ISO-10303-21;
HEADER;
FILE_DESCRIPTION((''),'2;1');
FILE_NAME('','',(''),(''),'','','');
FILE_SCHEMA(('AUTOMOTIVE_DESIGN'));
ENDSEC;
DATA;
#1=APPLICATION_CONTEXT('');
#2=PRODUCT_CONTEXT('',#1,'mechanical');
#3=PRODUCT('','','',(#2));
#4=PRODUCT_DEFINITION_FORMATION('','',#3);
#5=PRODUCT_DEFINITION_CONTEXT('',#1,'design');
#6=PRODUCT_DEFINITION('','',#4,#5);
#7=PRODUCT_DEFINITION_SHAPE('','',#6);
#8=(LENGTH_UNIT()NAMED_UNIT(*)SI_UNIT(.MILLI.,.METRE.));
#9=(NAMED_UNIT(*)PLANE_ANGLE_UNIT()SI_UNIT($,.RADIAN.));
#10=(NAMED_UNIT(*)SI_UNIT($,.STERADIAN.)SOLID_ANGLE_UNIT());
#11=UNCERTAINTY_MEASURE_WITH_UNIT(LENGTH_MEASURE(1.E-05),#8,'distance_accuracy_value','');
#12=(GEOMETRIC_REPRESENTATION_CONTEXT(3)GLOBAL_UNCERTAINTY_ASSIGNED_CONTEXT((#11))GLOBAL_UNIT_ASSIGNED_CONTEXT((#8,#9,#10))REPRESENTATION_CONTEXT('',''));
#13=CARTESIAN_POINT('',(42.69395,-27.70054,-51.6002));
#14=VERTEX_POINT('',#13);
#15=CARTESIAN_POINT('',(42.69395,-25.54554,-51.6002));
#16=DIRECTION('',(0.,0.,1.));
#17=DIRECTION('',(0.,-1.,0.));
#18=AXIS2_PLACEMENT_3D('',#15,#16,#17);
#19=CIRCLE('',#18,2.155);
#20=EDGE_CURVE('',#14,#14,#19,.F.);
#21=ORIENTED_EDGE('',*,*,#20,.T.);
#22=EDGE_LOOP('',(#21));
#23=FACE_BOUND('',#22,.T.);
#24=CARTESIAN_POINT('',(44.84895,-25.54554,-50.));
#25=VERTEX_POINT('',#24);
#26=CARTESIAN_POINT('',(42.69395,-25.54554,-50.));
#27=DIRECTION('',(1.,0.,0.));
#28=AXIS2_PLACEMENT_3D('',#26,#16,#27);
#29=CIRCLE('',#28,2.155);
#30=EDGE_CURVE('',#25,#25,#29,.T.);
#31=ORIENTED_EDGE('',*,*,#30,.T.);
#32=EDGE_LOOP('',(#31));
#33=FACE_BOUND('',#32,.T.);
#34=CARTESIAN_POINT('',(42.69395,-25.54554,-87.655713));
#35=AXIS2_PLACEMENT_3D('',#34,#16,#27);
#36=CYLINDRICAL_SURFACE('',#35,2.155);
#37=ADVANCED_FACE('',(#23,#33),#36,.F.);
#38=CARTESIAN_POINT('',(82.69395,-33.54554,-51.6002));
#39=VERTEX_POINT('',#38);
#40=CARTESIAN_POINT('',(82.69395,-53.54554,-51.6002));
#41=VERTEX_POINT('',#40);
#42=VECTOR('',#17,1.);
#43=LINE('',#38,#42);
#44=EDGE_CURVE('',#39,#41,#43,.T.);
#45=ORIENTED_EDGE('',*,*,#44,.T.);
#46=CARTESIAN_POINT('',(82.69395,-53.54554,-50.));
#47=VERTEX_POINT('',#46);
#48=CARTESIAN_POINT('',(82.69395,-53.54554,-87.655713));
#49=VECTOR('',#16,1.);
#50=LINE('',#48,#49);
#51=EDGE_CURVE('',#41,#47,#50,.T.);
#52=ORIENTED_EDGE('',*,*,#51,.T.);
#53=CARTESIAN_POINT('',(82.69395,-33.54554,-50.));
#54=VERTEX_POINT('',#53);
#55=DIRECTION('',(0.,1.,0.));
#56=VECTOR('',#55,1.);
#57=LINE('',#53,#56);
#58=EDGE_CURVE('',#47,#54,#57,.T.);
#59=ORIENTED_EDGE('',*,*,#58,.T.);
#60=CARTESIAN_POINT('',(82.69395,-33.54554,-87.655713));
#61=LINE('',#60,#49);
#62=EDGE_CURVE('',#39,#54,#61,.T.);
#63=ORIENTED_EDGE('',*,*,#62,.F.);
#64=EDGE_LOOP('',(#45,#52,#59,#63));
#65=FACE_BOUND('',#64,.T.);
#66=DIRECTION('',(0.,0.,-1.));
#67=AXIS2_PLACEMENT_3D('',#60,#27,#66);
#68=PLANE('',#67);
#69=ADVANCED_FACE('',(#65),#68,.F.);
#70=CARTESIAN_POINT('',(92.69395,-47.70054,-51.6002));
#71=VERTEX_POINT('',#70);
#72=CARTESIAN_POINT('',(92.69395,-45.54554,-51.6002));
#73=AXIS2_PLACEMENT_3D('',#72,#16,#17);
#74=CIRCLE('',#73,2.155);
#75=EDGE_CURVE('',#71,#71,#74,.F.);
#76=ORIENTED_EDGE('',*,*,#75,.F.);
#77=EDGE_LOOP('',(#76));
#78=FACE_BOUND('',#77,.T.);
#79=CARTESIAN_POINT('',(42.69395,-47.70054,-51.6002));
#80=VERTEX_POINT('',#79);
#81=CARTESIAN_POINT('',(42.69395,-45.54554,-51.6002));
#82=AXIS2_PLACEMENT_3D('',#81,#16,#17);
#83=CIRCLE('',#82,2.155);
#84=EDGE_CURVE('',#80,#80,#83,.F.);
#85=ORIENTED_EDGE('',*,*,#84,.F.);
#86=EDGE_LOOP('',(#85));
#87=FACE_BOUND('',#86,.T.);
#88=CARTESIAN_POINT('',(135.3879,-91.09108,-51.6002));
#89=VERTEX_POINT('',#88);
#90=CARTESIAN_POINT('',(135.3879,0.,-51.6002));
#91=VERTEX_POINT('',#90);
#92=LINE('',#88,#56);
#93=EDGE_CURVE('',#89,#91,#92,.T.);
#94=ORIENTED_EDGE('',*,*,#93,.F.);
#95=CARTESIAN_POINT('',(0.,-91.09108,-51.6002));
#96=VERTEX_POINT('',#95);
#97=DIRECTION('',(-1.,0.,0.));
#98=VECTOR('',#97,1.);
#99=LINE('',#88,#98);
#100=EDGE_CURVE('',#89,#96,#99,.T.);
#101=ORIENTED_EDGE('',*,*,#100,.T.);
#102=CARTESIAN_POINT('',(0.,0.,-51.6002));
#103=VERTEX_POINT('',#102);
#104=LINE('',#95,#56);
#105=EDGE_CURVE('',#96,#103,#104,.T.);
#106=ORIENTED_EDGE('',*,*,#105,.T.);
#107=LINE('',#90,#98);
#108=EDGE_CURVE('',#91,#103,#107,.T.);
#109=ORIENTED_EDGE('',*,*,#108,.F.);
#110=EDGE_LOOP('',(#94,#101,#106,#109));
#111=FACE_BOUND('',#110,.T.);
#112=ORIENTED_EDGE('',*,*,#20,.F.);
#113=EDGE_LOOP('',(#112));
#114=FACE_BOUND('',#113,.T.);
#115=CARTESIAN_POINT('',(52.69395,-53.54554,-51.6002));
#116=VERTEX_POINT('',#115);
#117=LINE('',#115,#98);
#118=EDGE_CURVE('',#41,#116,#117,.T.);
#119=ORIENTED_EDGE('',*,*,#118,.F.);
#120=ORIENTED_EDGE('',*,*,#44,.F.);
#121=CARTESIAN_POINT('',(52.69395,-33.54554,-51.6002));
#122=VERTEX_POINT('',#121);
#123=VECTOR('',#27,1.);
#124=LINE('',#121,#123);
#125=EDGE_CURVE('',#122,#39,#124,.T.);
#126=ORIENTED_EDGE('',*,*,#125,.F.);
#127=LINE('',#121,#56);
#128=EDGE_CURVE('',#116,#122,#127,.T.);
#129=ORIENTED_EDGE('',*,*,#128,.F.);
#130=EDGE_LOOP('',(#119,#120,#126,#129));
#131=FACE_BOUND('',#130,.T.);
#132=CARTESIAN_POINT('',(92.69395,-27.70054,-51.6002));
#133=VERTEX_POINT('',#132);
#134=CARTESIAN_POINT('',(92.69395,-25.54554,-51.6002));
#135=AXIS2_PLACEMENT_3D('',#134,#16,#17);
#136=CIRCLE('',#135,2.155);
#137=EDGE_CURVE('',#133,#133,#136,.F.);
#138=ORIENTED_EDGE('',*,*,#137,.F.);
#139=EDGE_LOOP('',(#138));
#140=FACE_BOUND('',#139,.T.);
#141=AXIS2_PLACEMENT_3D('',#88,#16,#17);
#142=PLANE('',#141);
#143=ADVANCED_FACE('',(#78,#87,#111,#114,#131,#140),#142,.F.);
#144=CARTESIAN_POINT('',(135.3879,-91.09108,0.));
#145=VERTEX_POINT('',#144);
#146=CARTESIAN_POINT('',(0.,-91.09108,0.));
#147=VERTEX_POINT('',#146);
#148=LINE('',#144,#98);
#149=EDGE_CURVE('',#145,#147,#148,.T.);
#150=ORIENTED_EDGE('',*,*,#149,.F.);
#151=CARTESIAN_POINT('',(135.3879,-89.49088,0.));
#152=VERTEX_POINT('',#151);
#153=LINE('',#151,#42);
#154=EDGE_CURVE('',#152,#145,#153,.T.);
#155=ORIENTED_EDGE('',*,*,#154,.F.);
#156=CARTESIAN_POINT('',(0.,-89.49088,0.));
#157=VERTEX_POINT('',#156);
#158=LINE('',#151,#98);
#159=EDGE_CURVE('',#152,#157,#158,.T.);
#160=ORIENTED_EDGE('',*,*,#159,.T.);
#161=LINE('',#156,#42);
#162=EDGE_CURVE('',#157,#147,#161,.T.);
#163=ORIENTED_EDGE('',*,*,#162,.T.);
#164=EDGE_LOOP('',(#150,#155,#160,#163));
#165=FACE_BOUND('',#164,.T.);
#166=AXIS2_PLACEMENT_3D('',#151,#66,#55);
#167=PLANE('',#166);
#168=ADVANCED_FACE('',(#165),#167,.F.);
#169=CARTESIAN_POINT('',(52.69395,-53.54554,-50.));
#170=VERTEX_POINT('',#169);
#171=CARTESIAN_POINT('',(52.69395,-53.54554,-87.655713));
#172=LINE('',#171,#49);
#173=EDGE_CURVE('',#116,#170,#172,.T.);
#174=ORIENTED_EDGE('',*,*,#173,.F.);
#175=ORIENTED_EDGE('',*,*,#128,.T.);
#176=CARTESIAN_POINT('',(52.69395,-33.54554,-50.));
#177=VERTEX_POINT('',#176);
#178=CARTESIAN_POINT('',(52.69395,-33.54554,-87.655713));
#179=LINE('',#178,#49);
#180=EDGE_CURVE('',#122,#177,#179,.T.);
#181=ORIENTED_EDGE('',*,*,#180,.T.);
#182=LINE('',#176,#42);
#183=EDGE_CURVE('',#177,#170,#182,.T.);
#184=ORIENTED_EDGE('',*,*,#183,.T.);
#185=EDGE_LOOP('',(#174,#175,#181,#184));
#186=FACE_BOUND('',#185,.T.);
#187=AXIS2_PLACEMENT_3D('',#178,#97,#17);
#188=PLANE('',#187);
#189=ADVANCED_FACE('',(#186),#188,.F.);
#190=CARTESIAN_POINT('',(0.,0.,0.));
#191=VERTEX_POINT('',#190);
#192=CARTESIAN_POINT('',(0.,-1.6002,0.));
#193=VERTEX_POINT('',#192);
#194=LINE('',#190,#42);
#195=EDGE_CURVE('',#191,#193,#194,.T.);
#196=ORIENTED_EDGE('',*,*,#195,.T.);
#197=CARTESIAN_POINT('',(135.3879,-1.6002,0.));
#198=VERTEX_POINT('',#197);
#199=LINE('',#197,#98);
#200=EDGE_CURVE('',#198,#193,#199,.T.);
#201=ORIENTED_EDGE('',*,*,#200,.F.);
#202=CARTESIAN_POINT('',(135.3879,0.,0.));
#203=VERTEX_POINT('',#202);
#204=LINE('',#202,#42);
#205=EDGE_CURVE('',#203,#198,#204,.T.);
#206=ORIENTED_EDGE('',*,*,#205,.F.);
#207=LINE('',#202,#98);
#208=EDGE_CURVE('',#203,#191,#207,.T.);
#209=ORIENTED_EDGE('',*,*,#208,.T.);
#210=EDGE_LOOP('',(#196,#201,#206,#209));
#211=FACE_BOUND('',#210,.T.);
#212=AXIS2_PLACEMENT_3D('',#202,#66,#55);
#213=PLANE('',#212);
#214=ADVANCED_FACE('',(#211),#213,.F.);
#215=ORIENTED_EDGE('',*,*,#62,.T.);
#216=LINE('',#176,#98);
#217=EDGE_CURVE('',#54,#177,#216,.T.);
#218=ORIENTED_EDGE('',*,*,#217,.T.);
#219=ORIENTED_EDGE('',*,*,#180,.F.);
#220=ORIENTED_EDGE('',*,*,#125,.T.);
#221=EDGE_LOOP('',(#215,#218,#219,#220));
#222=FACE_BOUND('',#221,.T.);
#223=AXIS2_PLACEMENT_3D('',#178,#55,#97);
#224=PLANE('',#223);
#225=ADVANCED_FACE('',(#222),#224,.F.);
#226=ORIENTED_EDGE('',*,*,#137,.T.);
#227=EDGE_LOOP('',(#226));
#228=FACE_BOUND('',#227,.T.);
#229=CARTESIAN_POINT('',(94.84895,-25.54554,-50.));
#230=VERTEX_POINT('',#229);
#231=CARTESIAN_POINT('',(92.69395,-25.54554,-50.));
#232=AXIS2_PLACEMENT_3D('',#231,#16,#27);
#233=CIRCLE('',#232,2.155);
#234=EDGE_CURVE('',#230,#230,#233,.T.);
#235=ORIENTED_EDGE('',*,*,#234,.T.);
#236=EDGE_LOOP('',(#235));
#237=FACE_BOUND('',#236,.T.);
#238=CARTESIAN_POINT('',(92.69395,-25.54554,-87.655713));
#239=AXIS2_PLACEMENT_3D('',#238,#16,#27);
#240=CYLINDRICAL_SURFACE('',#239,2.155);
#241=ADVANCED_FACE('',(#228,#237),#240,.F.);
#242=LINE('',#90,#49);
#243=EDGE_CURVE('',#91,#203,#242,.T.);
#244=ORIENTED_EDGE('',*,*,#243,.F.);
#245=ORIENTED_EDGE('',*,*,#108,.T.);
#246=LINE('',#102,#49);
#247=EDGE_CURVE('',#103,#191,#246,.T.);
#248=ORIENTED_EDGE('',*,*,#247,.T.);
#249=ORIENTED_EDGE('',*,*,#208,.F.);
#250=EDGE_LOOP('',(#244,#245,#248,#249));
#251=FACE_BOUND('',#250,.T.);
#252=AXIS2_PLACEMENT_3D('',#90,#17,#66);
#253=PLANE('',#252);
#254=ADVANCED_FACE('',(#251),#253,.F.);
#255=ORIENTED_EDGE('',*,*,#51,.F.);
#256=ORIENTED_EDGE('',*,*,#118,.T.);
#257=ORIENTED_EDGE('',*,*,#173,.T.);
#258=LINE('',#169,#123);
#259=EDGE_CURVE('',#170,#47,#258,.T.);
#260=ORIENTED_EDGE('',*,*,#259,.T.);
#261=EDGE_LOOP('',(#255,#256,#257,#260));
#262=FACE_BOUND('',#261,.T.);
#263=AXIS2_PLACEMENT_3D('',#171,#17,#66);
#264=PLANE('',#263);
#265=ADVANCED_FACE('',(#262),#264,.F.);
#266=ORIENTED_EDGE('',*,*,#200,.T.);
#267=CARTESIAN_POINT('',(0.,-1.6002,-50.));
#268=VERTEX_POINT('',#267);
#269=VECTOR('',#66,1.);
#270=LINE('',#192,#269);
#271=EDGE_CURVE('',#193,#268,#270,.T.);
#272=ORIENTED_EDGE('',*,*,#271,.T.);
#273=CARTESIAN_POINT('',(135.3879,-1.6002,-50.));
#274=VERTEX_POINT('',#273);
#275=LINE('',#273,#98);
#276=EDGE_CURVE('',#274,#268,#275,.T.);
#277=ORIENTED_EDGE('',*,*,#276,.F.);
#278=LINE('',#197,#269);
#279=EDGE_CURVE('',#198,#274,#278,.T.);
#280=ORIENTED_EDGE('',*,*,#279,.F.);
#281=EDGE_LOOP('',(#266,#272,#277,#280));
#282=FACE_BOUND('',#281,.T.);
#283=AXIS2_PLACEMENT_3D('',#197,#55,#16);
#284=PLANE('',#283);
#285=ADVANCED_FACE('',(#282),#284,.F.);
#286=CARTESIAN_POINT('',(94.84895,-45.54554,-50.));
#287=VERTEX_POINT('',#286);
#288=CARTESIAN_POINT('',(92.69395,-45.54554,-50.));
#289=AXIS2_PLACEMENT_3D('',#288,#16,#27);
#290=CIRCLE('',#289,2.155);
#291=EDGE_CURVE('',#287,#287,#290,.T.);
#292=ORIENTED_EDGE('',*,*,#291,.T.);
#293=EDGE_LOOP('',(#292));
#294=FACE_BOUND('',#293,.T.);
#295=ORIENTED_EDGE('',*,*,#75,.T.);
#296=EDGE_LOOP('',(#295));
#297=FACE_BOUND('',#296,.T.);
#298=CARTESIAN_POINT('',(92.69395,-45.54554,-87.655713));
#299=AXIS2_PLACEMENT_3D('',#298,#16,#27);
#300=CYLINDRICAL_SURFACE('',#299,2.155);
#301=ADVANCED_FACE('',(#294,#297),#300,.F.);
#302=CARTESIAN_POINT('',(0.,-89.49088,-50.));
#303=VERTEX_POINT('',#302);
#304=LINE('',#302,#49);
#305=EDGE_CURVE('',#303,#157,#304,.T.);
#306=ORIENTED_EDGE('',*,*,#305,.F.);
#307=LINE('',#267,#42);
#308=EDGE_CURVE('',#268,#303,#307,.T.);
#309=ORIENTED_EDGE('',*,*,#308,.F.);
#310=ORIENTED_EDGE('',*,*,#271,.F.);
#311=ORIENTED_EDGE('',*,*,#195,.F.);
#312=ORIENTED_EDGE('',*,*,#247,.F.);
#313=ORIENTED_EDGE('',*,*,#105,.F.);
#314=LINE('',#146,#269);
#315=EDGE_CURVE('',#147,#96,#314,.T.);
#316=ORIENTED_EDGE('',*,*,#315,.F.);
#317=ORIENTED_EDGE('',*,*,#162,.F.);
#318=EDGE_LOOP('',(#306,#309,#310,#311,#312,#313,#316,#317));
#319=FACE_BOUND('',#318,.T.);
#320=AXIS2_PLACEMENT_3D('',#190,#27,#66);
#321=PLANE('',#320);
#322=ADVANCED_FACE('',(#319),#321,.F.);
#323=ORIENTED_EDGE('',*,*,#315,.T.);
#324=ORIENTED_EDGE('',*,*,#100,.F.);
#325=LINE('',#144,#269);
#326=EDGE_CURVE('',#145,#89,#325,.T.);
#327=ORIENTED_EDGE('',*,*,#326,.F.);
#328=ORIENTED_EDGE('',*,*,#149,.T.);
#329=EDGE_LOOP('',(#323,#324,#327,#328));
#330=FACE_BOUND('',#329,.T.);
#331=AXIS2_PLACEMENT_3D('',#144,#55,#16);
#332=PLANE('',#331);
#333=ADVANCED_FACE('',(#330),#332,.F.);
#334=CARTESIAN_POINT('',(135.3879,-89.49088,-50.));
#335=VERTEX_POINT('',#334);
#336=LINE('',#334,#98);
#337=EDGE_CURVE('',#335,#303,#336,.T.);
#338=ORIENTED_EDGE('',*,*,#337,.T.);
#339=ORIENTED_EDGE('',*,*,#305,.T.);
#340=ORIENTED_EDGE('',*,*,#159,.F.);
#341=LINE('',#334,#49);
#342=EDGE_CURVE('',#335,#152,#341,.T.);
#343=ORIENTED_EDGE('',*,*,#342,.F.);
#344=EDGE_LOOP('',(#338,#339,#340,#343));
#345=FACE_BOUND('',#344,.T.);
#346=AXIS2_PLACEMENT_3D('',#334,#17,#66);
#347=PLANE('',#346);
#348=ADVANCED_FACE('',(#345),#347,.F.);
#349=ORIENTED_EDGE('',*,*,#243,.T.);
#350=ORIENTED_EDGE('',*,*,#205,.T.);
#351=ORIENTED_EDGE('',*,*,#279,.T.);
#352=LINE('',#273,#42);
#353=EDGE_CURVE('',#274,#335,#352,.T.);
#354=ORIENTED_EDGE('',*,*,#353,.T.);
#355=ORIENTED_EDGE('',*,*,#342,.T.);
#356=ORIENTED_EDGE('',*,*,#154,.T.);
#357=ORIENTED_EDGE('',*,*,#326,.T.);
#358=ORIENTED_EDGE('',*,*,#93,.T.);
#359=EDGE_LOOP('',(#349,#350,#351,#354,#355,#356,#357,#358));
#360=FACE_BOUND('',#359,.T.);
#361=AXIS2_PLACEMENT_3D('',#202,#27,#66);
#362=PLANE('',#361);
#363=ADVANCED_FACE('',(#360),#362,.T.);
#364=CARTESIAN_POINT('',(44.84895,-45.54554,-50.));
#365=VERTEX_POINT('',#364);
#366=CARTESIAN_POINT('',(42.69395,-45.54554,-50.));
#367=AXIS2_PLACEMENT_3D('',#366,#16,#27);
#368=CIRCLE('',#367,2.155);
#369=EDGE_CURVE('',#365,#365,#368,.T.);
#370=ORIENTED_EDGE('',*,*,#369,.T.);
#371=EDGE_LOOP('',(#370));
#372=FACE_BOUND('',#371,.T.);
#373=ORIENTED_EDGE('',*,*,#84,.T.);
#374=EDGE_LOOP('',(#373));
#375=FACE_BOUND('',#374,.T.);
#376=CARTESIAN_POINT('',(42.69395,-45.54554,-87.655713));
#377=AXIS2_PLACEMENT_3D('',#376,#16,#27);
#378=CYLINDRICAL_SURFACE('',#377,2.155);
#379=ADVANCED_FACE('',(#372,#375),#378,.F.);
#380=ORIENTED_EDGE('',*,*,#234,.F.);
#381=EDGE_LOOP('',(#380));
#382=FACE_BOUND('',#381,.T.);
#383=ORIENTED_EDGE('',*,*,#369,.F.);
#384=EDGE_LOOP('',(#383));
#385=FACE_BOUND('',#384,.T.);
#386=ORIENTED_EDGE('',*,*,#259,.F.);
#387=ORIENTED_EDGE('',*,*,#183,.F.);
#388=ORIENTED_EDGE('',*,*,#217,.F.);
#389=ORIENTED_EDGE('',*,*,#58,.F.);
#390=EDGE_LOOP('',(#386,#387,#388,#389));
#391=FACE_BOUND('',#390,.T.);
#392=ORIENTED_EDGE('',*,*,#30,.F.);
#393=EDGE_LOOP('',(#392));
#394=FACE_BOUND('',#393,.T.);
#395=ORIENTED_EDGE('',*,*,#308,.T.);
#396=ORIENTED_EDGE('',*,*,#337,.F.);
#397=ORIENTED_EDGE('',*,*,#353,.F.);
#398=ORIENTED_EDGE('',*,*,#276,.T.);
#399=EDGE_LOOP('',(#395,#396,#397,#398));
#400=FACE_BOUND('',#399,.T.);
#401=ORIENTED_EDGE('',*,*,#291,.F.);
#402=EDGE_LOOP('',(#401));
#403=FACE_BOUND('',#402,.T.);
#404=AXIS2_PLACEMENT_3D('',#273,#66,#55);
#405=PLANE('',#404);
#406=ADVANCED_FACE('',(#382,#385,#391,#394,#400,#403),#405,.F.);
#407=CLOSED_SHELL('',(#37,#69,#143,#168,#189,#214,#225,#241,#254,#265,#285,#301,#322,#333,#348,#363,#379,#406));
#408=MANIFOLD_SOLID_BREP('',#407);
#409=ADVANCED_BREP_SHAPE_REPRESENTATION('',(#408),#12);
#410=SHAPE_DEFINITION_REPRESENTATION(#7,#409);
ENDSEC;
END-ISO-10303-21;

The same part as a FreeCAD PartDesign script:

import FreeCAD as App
import Part
import Sketcher


def add_polygon(sketch, points):
    """Adds a closed chain of lines whose ends are joined by coincident constraints."""
    first, n = sketch.GeometryCount, len(points)
    for a, b in zip(points, points[1:] + points[:1]):
        sketch.addGeometry(Part.LineSegment(App.Vector(*a, 0), App.Vector(*b, 0)), False)
    for i in range(n):
        sketch.addConstraint(Sketcher.Constraint("Coincident", first + i, 2, first + (i + 1) % n, 1))

doc = App.newDocument("Part")
params = doc.addObject("Spreadsheet::Sheet", "Params")
for row, (alias, value) in enumerate([
    ("sketch1_height", "50 mm"),
    ("pad1_length", "135.3879 mm"),
    ("sketch2_diameter", "4.31 mm"),
    ("sketch2_width", "30 mm"),
    ("sketch2_height", "20 mm"),
    ("pocket1_length", "1.6002 mm"),
], start=1):
    params.set(f"A{row}", alias)
    params.set(f"B{row}", "=" + value)
    params.setAlias(f"B{row}", alias)

body = doc.addObject("PartDesign::Body", "Body")

# Sketch on YZ plane
sketch1 = body.newObject("Sketcher::SketchObject", "Sketch")
sketch1.AttachmentSupport = (doc.getObject("YZ_Plane"), [""])
sketch1.MapMode = "FlatFace"
add_polygon(sketch1, [(0, 0), (-1.6, 0), (-1.6, -50), (-89.5, -50), (-89.5, 0), (-91.1, 0), (-91.1, -51.6), (0, -51.6)])  # lines 0-7
sketch1.addConstraint([
    Sketcher.Constraint("Horizontal", 0),
    Sketcher.Constraint("Vertical", 1),
    Sketcher.Constraint("Horizontal", 2),
    Sketcher.Constraint("Vertical", 3),
    Sketcher.Constraint("Horizontal", 4),
    Sketcher.Constraint("Vertical", 5),
    Sketcher.Constraint("Horizontal", 6),
    Sketcher.Constraint("Vertical", 7),
    Sketcher.Constraint("Coincident", 7, 2, -1, 1),
    Sketcher.Constraint("PointOnObject", 3, 2, -1),
    Sketcher.Constraint("Equal", 0, 4),
    Sketcher.Constraint("DistanceY", 1, 2, 1, 1, 50.0),
    Sketcher.Constraint("DistanceX", 0, 2, 0, 1, 1.6002),
    Sketcher.Constraint("DistanceY", 5, 2, 5, 1, 51.6002),
    Sketcher.Constraint("DistanceX", 2, 2, 2, 1, 87.89068),
])
sketch1.setExpression("Constraints[19]", "Params.sketch1_height")
pad1 = body.newObject("PartDesign::Pad", "Pad")
pad1.Profile = sketch1
pad1.setExpression("Length", "Params.pad1_length")

# Sketch on XY plane
sketch2 = body.newObject("Sketcher::SketchObject", "Sketch001")
sketch2.AttachmentSupport = (doc.getObject("XY_Plane"), [""])
sketch2.MapMode = "FlatFace"
sketch2.AttachmentOffset = App.Placement(App.Vector(0, 0, -50), App.Rotation())
sketch2.addGeometry(Part.Circle(App.Vector(42.7, -25.5, 0), App.Vector(0, 0, 1), 2.2), False)  # 0
sketch2.addGeometry(Part.Circle(App.Vector(92.7, -25.5, 0), App.Vector(0, 0, 1), 2.2), False)  # 1
sketch2.addGeometry(Part.Circle(App.Vector(42.7, -45.5, 0), App.Vector(0, 0, 1), 2.2), False)  # 2
sketch2.addGeometry(Part.Circle(App.Vector(92.7, -45.5, 0), App.Vector(0, 0, 1), 2.2), False)  # 3
add_polygon(sketch2, [(52.7, -33.5), (52.7, -53.5), (82.7, -53.5), (82.7, -33.5)])  # lines 4-7
sketch2.addConstraint([
    Sketcher.Constraint("Vertical", 4),
    Sketcher.Constraint("Horizontal", 5),
    Sketcher.Constraint("Vertical", 6),
    Sketcher.Constraint("Horizontal", 7),
    Sketcher.Constraint("Equal", 0, 1),
    Sketcher.Constraint("Equal", 1, 2),
    Sketcher.Constraint("Equal", 2, 3),
    Sketcher.Constraint("Horizontal", 0, 3, 1, 3),
    Sketcher.Constraint("Horizontal", 2, 3, 3, 3),
    Sketcher.Constraint("Vertical", 0, 3, 2, 3),
    Sketcher.Constraint("Vertical", 1, 3, 3, 3),
    Sketcher.Constraint("Diameter", 0, 4.31),
    Sketcher.Constraint("DistanceX", 5, 1, 5, 2, 30.0),
    Sketcher.Constraint("DistanceY", 4, 2, 4, 1, 20.0),
    Sketcher.Constraint("DistanceX", 0, 3, 1, 3, 50.0),
    Sketcher.Constraint("DistanceY", 2, 3, 0, 3, 20.0),
    Sketcher.Constraint("DistanceX", 2, 3, 4, 2, 10.0),
    Sketcher.Constraint("DistanceY", 4, 2, 2, 3, 8.0),
    Sketcher.Constraint("DistanceX", -1, 1, 0, 3, 42.69395),
    Sketcher.Constraint("DistanceY", 0, 3, -1, 1, 25.54554),
])
sketch2.setExpression("Constraints[15]", "Params.sketch2_diameter")
sketch2.setExpression("Constraints[16]", "Params.sketch2_width")
sketch2.setExpression("Constraints[17]", "Params.sketch2_height")
pocket1 = body.newObject("PartDesign::Pocket", "Pocket")
pocket1.Profile = sketch2
pocket1.setExpression("Length", "Params.pocket1_length")

doc.recompute()
